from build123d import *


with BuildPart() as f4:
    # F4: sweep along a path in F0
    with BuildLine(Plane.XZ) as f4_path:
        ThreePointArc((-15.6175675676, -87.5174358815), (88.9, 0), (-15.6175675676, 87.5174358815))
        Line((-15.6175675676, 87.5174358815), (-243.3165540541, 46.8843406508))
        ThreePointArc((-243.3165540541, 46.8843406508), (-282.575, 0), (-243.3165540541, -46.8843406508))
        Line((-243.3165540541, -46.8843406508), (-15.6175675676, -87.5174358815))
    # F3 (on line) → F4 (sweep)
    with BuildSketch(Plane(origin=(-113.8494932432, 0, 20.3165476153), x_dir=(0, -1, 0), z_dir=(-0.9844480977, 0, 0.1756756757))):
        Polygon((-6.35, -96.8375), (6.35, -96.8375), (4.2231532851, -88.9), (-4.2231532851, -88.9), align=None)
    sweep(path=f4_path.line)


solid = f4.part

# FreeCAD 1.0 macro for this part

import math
import FreeCAD as App
import Part
import Sketcher
from FreeCAD import Vector
Q = App.Units.Quantity

doc = App.newDocument("Part")
body = doc.addObject("PartDesign::Body", "Body")

sketch1 = body.newObject("Sketcher::SketchObject", "Sketch")
sketch1.Placement = App.Placement(Vector(-113.849493, 0, 20.316548), App.Rotation(Vector(0, -1, 0), Vector(0.175675676, 0, 0.984448098), Vector(-0.984448098, 0, 0.175675676), "ZXY"))
sketch1.addGeometry([
    Part.LineSegment(Vector(-6, -97, 0), Vector(6, -97, 0)),
    Part.LineSegment(Vector(6, -97, 0), Vector(4, -89, 0)),
    Part.LineSegment(Vector(4, -89, 0), Vector(-4, -89, 0)),
    Part.LineSegment(Vector(-4, -89, 0), Vector(-6, -97, 0)),
], False)
sketch1.addConstraint([
    Sketcher.Constraint("Coincident", 0, 2, 1, 1),
    Sketcher.Constraint("Coincident", 1, 2, 2, 1),
    Sketcher.Constraint("Coincident", 2, 2, 3, 1),
    Sketcher.Constraint("Coincident", 3, 2, 0, 1),
    Sketcher.Constraint("Horizontal", 0),
    Sketcher.Constraint("Horizontal", 2),
    Sketcher.Constraint("Equal", 1, 3),
    Sketcher.Constraint("DistanceX", 0, 1, 0, 2, Q("0.5 in")),
    Sketcher.Constraint("Angle", 1, Q("105 deg")),
    Sketcher.Constraint("DistanceY", 1, 2, -1, 1, Q("3.5 in")),
    Sketcher.Constraint("DistanceX", -1, 1, 0, 2, Q("0.25 in")),
    Sketcher.Constraint("DistanceY", 0, 2, -1, 1, Q("3.8125 in")),
])

sketch2 = body.newObject("Sketcher::SketchObject", "Sketch001")
sketch2.AttachmentSupport = (doc.getObject("XZ_Plane"), [""])
sketch2.MapMode = "FlatFace"
sketch2.addGeometry([
    Part.ArcOfCircle(Part.Circle(Vector(0, 0, 0), Vector(0, 0, 1), 89), math.radians(-100), math.radians(100)),
    Part.LineSegment(Vector(-16, 88, 0), Vector(-243, 47, 0)),
    Part.ArcOfCircle(Part.Circle(Vector(-235, 0, 0), Vector(0, 0, 1), 48), math.radians(100), math.radians(260)),
    Part.LineSegment(Vector(-243, -47, 0), Vector(-16, -88, 0)),
], False)
sketch2.addConstraint([
    Sketcher.Constraint("Tangent", 0, 2, 1, 1),
    Sketcher.Constraint("Tangent", 1, 2, 2, 1),
    Sketcher.Constraint("Tangent", 2, 2, 3, 1),
    Sketcher.Constraint("Tangent", 3, 2, 0, 1),
    Sketcher.Constraint("Coincident", 0, 3, -1, 1),
    Sketcher.Constraint("PointOnObject", 2, 3, -1),
    Sketcher.Constraint("Radius", 0, Q("3.5 in")),
    Sketcher.Constraint("Radius", 2, Q("1.875 in")),
    Sketcher.Constraint("DistanceX", 2, 3, -1, 1, Q("9.25 in")),
])
doc.recompute()

additivepipe = body.newObject("PartDesign::AdditivePipe", "AdditivePipe")
additivepipe.Profile = sketch1
additivepipe.Spine = (sketch2, ["Edge1", "Edge2", "Edge3", "Edge4"])

doc.recompute()
